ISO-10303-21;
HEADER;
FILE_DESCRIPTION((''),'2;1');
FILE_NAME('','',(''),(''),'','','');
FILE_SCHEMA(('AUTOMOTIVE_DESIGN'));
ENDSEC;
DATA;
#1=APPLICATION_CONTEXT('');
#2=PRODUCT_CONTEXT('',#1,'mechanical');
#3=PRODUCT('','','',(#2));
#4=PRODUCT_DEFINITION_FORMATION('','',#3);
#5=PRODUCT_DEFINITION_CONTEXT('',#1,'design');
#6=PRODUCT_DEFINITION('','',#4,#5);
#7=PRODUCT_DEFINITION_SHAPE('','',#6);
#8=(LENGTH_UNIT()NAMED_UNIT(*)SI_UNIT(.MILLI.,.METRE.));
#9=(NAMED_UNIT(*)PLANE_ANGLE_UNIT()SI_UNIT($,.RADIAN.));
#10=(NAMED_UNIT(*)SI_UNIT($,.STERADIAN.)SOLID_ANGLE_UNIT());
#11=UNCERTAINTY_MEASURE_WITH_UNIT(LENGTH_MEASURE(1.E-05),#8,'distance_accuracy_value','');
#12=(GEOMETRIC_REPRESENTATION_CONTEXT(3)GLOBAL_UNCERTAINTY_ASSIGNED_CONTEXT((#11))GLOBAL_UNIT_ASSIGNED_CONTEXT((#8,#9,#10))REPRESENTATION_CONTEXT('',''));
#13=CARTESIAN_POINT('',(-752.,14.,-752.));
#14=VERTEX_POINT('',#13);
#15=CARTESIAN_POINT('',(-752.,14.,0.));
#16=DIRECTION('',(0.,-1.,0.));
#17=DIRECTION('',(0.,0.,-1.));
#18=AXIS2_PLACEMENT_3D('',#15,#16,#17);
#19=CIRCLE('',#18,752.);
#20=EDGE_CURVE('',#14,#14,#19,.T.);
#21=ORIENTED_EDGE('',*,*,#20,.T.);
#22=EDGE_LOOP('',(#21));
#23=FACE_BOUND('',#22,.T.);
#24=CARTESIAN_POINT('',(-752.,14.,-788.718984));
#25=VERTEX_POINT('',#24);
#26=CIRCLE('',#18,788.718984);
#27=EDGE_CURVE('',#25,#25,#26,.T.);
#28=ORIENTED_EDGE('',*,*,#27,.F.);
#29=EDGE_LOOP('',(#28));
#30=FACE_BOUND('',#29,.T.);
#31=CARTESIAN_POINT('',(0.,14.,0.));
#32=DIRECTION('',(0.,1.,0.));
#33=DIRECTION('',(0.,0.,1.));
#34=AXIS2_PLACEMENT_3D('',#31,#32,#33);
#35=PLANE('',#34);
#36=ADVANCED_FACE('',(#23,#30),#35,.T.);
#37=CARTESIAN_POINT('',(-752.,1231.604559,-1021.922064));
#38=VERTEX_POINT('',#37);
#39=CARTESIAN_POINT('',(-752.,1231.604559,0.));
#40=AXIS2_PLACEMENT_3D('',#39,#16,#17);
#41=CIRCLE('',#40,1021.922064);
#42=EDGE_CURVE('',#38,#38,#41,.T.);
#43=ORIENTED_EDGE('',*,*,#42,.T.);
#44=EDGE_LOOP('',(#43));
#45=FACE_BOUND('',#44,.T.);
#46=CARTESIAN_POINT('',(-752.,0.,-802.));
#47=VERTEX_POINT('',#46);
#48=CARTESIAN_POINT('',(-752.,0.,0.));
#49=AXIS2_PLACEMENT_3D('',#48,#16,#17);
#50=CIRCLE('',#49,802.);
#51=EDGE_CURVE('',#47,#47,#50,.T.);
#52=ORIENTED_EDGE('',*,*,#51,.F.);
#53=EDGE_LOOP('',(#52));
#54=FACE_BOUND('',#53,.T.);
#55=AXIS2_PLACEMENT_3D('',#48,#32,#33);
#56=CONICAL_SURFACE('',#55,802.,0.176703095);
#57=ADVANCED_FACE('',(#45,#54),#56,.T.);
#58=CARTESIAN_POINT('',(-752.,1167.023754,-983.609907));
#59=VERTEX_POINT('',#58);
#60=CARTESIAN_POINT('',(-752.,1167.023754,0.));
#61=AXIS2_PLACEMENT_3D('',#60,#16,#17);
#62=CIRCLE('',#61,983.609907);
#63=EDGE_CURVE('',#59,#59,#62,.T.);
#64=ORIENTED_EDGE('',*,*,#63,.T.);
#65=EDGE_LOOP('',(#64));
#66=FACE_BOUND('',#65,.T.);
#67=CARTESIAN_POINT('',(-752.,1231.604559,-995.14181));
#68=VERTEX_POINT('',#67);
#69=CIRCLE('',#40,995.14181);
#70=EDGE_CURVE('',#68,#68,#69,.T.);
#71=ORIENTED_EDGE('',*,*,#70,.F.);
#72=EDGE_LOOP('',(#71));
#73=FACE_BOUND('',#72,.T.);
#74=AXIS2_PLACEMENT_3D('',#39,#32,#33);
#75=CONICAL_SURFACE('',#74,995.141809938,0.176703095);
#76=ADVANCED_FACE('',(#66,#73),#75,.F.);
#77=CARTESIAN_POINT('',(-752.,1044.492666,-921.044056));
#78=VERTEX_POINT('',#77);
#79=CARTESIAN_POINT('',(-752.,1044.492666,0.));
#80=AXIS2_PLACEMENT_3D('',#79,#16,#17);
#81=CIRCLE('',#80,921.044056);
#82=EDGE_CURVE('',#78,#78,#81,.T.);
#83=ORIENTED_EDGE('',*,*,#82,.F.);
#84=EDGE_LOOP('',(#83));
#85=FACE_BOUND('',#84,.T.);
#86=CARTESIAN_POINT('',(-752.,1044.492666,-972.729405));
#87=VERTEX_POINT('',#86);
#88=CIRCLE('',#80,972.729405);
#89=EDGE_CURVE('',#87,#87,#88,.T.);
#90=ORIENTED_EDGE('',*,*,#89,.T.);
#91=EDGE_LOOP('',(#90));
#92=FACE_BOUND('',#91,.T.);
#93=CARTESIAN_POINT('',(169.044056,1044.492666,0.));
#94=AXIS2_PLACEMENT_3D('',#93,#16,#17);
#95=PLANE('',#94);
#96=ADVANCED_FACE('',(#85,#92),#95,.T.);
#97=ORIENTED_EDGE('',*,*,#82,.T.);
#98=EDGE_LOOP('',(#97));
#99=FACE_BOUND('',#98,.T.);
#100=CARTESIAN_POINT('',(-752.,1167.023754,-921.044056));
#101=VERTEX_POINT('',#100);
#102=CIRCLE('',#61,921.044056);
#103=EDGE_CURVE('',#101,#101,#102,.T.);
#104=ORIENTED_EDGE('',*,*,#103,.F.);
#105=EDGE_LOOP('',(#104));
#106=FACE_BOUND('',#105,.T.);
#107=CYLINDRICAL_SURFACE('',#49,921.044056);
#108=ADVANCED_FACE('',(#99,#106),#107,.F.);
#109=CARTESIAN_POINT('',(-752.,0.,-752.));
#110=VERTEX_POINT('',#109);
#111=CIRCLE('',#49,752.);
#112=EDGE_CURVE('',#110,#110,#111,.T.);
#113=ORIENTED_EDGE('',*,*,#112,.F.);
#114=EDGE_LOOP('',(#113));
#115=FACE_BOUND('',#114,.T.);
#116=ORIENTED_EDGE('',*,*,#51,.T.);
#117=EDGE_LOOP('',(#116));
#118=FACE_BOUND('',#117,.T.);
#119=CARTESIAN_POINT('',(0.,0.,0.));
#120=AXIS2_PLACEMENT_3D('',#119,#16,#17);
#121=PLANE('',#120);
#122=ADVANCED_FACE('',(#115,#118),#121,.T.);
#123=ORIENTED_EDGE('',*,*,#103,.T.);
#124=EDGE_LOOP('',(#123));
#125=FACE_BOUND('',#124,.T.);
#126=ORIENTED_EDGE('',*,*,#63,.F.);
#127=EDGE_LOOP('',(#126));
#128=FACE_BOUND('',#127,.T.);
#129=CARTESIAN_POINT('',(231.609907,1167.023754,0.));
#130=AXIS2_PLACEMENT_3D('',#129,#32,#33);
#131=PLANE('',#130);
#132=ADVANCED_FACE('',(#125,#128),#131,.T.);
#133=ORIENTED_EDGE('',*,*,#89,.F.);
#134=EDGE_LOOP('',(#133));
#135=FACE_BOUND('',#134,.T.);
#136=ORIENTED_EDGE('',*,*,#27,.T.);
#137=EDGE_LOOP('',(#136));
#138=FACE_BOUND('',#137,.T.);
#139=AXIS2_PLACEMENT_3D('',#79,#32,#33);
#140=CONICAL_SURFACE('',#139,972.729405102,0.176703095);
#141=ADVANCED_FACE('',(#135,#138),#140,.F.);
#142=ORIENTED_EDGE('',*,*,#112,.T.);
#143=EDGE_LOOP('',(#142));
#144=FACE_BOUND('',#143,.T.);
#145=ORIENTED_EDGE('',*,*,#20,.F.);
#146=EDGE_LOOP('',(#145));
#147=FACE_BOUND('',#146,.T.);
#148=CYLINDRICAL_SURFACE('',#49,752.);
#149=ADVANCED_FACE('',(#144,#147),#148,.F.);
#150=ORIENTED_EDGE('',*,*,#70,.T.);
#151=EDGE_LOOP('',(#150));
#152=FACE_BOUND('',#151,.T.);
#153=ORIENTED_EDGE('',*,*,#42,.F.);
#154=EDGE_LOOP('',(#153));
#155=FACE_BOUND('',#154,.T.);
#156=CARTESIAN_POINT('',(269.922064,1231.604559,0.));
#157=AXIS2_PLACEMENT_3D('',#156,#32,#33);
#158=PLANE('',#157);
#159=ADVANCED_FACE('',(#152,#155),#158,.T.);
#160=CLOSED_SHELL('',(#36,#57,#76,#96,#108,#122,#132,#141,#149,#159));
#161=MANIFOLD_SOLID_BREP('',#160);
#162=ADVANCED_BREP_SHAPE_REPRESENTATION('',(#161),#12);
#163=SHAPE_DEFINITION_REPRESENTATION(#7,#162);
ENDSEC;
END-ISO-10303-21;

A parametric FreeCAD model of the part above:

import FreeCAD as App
import Part
import Sketcher
from FreeCAD import Vector

doc = App.newDocument("Part")
params = doc.addObject("Spreadsheet::Sheet", "Params")
for row, (alias, value) in enumerate([
    ("sketch1_width", "50 mm"),
    ("sketch1_height", "14 mm"),
    ("revolution_angle", "360 deg"),
], start=1):
    params.set(f"A{row}", alias)
    params.set(f"B{row}", "=" + value)
    params.setAlias(f"B{row}", alias)

body = doc.addObject("PartDesign::Body", "Body")

# Sketch on XY plane
sketch1 = body.newObject("Sketcher::SketchObject", "Sketch")
sketch1.AttachmentSupport = (doc.getObject("XY_Plane"), [""])
sketch1.MapMode = "FlatFace"
sketch1.addGeometry(Part.LineSegment(Vector(0, 0, 0), Vector(50, 0, 0)), False)
sketch1.addGeometry(Part.LineSegment(Vector(50, 0, 0), Vector(270, 1232, 0)), False)
sketch1.addGeometry(Part.LineSegment(Vector(270, 1232, 0), Vector(243, 1232, 0)), False)
sketch1.addGeometry(Part.LineSegment(Vector(243, 1232, 0), Vector(232, 1167, 0)), False)
sketch1.addGeometry(Part.LineSegment(Vector(232, 1167, 0), Vector(169, 1167, 0)), False)
sketch1.addGeometry(Part.LineSegment(Vector(169, 1167, 0), Vector(169, 1044, 0)), False)
sketch1.addGeometry(Part.LineSegment(Vector(169, 1044, 0), Vector(221, 1044, 0)), False)
sketch1.addGeometry(Part.LineSegment(Vector(221, 1044, 0), Vector(37, 14, 0)), False)
sketch1.addGeometry(Part.LineSegment(Vector(37, 14, 0), Vector(0, 14, 0)), False)
sketch1.addGeometry(Part.LineSegment(Vector(0, 14, 0), Vector(0, 0, 0)), False)
sketch1.addGeometry(Part.LineSegment(Vector(-752, 0, 0), Vector(-752, 1232, 0)), True)  # axis
sketch1.addConstraint(Sketcher.Constraint("Coincident", 0, 2, 1, 1))
sketch1.addConstraint(Sketcher.Constraint("Coincident", 1, 2, 2, 1))
sketch1.addConstraint(Sketcher.Constraint("Coincident", 2, 2, 3, 1))
sketch1.addConstraint(Sketcher.Constraint("Coincident", 3, 2, 4, 1))
sketch1.addConstraint(Sketcher.Constraint("Coincident", 4, 2, 5, 1))
sketch1.addConstraint(Sketcher.Constraint("Coincident", 5, 2, 6, 1))
sketch1.addConstraint(Sketcher.Constraint("Coincident", 6, 2, 7, 1))
sketch1.addConstraint(Sketcher.Constraint("Coincident", 7, 2, 8, 1))
sketch1.addConstraint(Sketcher.Constraint("Coincident", 8, 2, 9, 1))
sketch1.addConstraint(Sketcher.Constraint("Coincident", 9, 2, 0, 1))
sketch1.addConstraint(Sketcher.Constraint("Horizontal", 0))
sketch1.addConstraint(Sketcher.Constraint("Horizontal", 2))
sketch1.addConstraint(Sketcher.Constraint("Horizontal", 4))
sketch1.addConstraint(Sketcher.Constraint("Vertical", 5))
sketch1.addConstraint(Sketcher.Constraint("Horizontal", 6))
sketch1.addConstraint(Sketcher.Constraint("Horizontal", 8))
sketch1.addConstraint(Sketcher.Constraint("Vertical", 9))
sketch1.addConstraint(Sketcher.Constraint("Vertical", 10))
sketch1.addConstraint(Sketcher.Constraint("Coincident", 9, 2, -1, 1))
sketch1.addConstraint(Sketcher.Constraint("PointOnObject", 10, 1, -1))
sketch1.addConstraint(Sketcher.Constraint("Parallel", 1, 3))
sketch1.addConstraint(Sketcher.Constraint("Parallel", 3, 7))
sketch1.addConstraint(Sketcher.Constraint("Horizontal", 2, 2, 10, 2))
sketch1.addConstraint(Sketcher.Constraint("DistanceX", 0, 1, 0, 2, 50.0))
sketch1.addConstraint(Sketcher.Constraint("DistanceY", 9, 2, 9, 1, 14.0))
sketch1.addConstraint(Sketcher.Constraint("DistanceX", 10, 1, -1, 1, 752.0))
sketch1.addConstraint(Sketcher.Constraint("DistanceX", 4, 2, 4, 1, 62.565851))
sketch1.addConstraint(Sketcher.Constraint("DistanceX", 6, 1, 6, 2, 51.685349))
sketch1.addConstraint(Sketcher.Constraint("DistanceY", 5, 2, 5, 1, 122.531088))
sketch1.addConstraint(Sketcher.Constraint("DistanceY", 10, 1, 10, 2, 1231.604559))
sketch1.addConstraint(Sketcher.Constraint("Distance", 1, 1251.08573))
sketch1.addConstraint(Sketcher.Constraint("DistanceX", 2, 2, 2, 1, 26.780254))
sketch1.addConstraint(Sketcher.Constraint("DistanceX", 6, 2, 1, 2, 49.192659))
sketch1.setExpression("Constraints[23]", "Params.sketch1_width")
sketch1.setExpression("Constraints[24]", "Params.sketch1_height")
revolution = body.newObject("PartDesign::Revolution", "Revolution")
revolution.Profile = sketch1
revolution.ReferenceAxis = (sketch1, ["Axis0"])
revolution.setExpression("Angle", "Params.revolution_angle")

doc.recompute()
